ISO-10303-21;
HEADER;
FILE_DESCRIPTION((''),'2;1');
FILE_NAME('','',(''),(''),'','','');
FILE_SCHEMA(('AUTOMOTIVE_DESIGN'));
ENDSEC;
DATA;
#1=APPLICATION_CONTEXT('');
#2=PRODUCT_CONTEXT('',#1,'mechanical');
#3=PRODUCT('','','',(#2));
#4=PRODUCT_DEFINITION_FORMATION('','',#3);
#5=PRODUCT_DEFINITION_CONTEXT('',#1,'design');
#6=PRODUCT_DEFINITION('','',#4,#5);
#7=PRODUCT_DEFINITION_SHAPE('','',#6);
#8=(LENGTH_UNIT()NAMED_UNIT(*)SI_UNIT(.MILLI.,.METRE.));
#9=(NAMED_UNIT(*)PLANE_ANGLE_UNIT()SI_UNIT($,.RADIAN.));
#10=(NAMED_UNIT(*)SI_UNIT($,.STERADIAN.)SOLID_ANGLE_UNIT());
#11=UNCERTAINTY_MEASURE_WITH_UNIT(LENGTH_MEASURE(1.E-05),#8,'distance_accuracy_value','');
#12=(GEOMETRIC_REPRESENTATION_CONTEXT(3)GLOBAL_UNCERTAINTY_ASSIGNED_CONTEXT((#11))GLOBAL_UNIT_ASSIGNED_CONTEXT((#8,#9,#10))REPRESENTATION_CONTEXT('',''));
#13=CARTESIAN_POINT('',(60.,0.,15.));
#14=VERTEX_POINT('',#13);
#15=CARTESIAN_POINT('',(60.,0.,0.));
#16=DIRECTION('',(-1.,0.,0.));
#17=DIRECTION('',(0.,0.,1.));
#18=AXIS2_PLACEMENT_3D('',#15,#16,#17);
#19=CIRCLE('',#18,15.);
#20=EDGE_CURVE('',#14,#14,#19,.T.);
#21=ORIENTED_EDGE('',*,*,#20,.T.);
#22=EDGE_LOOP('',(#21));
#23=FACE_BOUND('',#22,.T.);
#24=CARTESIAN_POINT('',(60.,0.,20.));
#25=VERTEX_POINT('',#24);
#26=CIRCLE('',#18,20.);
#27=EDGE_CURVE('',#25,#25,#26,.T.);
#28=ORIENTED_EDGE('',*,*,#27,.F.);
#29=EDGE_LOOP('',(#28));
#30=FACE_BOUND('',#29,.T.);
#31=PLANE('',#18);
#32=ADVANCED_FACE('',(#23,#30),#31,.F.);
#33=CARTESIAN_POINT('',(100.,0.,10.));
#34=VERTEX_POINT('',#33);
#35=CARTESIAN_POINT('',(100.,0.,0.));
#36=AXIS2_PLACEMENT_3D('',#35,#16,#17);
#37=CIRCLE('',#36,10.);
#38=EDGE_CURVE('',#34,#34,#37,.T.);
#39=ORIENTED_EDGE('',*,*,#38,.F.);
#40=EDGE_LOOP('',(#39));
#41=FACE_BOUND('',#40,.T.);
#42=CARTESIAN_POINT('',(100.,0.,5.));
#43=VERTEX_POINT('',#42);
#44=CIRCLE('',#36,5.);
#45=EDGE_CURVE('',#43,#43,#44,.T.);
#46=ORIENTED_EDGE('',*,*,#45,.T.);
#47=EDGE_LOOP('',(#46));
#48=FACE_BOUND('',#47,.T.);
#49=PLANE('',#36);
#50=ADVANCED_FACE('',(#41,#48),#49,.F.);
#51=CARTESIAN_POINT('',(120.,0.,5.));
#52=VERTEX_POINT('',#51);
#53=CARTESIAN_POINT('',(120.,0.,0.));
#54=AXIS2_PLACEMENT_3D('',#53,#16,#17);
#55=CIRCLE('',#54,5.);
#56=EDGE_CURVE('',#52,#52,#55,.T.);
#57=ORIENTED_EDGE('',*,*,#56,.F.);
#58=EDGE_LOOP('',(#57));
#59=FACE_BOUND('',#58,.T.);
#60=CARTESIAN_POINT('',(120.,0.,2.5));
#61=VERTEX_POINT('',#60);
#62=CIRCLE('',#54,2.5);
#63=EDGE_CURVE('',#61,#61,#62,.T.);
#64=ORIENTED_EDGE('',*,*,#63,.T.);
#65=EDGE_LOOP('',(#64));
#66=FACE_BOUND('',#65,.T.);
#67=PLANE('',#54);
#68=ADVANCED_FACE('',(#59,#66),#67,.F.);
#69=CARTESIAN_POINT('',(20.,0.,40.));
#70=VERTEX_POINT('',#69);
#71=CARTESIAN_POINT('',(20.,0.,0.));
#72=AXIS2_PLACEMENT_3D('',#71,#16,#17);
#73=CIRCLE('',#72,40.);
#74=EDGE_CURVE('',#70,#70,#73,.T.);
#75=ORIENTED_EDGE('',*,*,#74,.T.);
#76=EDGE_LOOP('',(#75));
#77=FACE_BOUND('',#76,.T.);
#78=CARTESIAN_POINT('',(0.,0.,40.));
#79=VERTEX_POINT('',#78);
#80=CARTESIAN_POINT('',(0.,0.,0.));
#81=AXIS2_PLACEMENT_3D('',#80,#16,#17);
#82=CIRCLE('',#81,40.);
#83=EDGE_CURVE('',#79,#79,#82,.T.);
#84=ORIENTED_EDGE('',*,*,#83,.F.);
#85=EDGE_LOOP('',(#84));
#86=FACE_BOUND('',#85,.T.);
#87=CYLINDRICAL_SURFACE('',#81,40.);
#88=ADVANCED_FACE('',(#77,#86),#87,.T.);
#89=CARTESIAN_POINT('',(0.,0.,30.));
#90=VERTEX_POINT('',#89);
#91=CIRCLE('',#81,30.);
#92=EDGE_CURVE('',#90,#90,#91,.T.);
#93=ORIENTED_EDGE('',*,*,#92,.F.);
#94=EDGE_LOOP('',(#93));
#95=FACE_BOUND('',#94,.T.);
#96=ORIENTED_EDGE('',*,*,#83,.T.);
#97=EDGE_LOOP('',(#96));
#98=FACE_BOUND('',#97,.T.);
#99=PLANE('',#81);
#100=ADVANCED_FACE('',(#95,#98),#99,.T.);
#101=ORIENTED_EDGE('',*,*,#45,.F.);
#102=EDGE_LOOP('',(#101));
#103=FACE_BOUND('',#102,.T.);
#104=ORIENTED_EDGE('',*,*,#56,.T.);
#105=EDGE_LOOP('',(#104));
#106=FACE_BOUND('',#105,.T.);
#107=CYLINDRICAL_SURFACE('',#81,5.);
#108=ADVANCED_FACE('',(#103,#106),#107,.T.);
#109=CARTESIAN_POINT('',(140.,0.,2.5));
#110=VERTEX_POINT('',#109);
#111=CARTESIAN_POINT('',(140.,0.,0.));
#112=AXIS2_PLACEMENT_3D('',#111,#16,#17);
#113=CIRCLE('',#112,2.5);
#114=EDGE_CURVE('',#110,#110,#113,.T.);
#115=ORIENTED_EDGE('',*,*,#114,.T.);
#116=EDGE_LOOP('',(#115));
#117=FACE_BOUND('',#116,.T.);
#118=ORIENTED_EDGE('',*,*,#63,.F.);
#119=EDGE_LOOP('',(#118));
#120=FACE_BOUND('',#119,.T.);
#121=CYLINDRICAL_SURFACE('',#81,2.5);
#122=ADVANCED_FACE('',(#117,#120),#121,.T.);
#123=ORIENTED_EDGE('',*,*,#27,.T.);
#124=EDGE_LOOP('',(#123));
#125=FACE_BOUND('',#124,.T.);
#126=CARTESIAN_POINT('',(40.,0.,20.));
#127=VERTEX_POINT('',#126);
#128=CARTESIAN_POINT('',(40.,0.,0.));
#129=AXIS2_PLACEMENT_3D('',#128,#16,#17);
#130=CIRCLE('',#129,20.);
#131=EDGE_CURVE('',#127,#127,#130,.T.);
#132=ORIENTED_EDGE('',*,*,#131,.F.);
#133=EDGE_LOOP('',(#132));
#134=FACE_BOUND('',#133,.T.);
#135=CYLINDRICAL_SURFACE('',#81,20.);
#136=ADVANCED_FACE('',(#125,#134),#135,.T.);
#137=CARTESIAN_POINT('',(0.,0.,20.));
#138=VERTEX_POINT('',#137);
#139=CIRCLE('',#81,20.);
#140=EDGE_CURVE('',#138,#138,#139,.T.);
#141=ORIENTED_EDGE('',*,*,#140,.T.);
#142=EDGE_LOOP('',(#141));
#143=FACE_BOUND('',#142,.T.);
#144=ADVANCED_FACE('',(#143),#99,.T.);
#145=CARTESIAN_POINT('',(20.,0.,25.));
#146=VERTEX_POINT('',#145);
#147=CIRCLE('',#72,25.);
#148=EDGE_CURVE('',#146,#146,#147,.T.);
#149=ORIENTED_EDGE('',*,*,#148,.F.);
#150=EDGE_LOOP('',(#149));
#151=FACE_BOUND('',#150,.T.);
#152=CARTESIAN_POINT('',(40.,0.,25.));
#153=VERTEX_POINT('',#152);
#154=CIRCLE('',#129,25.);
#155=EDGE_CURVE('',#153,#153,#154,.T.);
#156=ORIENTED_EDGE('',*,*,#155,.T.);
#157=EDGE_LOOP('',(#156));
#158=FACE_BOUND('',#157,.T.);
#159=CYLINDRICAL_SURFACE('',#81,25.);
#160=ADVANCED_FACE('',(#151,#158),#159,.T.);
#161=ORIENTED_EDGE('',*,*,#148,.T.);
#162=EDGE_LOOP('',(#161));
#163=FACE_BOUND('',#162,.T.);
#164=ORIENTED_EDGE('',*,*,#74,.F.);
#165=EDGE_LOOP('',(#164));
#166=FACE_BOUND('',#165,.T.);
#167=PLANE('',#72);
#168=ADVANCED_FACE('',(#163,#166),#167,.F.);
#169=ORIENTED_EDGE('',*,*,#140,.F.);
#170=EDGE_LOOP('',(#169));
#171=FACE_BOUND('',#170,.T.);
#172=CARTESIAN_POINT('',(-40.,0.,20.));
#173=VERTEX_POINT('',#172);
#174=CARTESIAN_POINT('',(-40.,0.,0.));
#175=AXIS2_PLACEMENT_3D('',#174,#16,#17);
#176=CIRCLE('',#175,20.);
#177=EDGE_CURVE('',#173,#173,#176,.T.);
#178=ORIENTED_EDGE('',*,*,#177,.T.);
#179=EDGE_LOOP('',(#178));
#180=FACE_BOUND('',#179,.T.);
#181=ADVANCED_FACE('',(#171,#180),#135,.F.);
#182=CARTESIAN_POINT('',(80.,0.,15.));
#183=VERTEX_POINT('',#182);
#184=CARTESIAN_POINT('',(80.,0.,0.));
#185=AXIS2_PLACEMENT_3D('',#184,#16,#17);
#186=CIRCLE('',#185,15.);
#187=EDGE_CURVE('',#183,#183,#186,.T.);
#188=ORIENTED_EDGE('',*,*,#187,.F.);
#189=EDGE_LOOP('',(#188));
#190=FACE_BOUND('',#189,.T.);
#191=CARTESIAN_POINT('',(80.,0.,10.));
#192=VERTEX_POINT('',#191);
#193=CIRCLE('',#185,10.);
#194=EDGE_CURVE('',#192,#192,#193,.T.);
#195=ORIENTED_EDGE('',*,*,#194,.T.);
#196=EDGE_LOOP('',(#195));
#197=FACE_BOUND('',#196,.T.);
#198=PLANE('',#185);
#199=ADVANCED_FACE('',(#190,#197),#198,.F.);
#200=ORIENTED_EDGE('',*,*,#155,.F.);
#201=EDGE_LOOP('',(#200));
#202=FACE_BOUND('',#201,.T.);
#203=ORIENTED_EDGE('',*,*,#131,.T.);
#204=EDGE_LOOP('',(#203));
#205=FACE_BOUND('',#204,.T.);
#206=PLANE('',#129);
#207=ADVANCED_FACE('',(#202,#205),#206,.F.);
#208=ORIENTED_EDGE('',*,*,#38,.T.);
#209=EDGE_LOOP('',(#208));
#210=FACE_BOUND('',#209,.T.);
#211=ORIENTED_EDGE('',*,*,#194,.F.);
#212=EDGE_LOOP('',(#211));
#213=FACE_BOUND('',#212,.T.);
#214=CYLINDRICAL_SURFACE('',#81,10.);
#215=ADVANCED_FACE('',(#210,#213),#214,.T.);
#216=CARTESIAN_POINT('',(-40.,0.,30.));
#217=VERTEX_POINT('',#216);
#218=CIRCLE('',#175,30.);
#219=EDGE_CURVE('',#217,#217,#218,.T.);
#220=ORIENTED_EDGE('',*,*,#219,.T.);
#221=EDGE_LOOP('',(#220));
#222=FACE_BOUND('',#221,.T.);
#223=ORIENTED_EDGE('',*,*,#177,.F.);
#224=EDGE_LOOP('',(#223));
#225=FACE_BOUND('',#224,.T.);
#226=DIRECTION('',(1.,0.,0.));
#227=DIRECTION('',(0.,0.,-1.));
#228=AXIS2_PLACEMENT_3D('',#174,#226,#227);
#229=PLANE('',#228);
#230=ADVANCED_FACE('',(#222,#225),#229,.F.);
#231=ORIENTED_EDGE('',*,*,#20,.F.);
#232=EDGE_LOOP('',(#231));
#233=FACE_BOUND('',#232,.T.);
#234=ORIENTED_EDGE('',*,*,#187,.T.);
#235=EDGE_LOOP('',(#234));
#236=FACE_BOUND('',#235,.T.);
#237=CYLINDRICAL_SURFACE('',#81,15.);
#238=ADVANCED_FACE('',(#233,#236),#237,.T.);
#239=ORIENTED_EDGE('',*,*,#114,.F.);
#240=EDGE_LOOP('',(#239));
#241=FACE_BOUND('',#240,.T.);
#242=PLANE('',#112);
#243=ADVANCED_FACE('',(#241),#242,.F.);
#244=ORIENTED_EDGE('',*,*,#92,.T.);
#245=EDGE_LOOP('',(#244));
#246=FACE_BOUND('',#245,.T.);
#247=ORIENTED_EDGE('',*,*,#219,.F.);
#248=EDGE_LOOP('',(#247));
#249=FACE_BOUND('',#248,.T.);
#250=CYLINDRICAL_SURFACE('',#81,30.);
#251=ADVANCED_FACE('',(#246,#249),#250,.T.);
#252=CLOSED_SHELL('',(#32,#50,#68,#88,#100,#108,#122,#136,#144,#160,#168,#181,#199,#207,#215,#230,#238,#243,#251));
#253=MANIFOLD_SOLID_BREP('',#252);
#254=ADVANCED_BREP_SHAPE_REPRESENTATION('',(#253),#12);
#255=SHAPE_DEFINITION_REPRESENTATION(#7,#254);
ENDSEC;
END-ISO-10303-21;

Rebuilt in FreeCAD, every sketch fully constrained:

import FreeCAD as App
import Part
import Sketcher
from FreeCAD import Vector
Q = App.Units.Quantity


def add_polygon(sketch, points):
    """Adds a closed chain of lines whose ends are joined by coincident constraints."""
    first, n = sketch.GeometryCount, len(points)
    for a, b in zip(points, points[1:] + points[:1]):
        sketch.addGeometry(Part.LineSegment(App.Vector(*a, 0), App.Vector(*b, 0)), False)
    for i in range(n):
        sketch.addConstraint(Sketcher.Constraint("Coincident", first + i, 2, first + (i + 1) % n, 1))

doc = App.newDocument("Part")
body = doc.addObject("PartDesign::Body", "Body")

# Sketch on XY plane
sketch1 = body.newObject("Sketcher::SketchObject", "Sketch")
sketch1.AttachmentSupport = (doc.getObject("XY_Plane"), [""])
sketch1.MapMode = "FlatFace"
add_polygon(sketch1, [(-40, 30), (-40, 20), (0, 20), (0, 0), (140, 0), (140, 2.5), (120, 2.5), (120, 5), (100, 5), (100, 10), (80, 10), (80, 15), (60, 15), (60, 20), (40, 20), (40, 25), (20, 25), (20, 40), (0, 40), (0, 30)])  # lines 0-19
sketch1.addConstraint([
    Sketcher.Constraint("Vertical", 0),
    Sketcher.Constraint("Horizontal", 1),
    Sketcher.Constraint("Vertical", 2),
    Sketcher.Constraint("Horizontal", 3),
    Sketcher.Constraint("Vertical", 4),
    Sketcher.Constraint("Horizontal", 5),
    Sketcher.Constraint("Vertical", 6),
    Sketcher.Constraint("Horizontal", 7),
    Sketcher.Constraint("Vertical", 8),
    Sketcher.Constraint("Horizontal", 9),
    Sketcher.Constraint("Vertical", 10),
    Sketcher.Constraint("Horizontal", 11),
    Sketcher.Constraint("Vertical", 12),
    Sketcher.Constraint("Horizontal", 13),
    Sketcher.Constraint("Vertical", 14),
    Sketcher.Constraint("Horizontal", 15),
    Sketcher.Constraint("Vertical", 16),
    Sketcher.Constraint("Horizontal", 17),
    Sketcher.Constraint("Vertical", 18),
    Sketcher.Constraint("Horizontal", 19),
    Sketcher.Constraint("Coincident", 2, 2, -1, 1),
    Sketcher.Constraint("Symmetric", 0, 2, 13, 2, -2),
    Sketcher.Constraint("PointOnObject", 17, 2, -2),
    Sketcher.Constraint("Equal", 5, 7),
    Sketcher.Constraint("Equal", 7, 9),
    Sketcher.Constraint("Equal", 9, 11),
    Sketcher.Constraint("Equal", 11, 13),
    Sketcher.Constraint("Equal", 13, 15),
    Sketcher.Constraint("Equal", 15, 17),
    Sketcher.Constraint("Equal", 17, 2),
    Sketcher.Constraint("Equal", 4, 6),
    Sketcher.Constraint("Equal", 8, 10),
    Sketcher.Constraint("Equal", 10, 12),
    Sketcher.Constraint("Equal", 12, 14),
    Sketcher.Constraint("Equal", 0, 18),
    Sketcher.Constraint("DistanceX", 1, 1, 1, 2, Q("40 mm")),
    Sketcher.Constraint("DistanceY", 0, 2, 0, 1, Q("10 mm")),
    Sketcher.Constraint("DistanceY", 8, 1, 8, 2, Q("5 mm")),
])
revolution = body.newObject("PartDesign::Revolution", "Revolution")
revolution.Profile = sketch1
revolution.ReferenceAxis = (sketch1, ["H_Axis"])
revolution.Angle = 360

doc.recompute()
